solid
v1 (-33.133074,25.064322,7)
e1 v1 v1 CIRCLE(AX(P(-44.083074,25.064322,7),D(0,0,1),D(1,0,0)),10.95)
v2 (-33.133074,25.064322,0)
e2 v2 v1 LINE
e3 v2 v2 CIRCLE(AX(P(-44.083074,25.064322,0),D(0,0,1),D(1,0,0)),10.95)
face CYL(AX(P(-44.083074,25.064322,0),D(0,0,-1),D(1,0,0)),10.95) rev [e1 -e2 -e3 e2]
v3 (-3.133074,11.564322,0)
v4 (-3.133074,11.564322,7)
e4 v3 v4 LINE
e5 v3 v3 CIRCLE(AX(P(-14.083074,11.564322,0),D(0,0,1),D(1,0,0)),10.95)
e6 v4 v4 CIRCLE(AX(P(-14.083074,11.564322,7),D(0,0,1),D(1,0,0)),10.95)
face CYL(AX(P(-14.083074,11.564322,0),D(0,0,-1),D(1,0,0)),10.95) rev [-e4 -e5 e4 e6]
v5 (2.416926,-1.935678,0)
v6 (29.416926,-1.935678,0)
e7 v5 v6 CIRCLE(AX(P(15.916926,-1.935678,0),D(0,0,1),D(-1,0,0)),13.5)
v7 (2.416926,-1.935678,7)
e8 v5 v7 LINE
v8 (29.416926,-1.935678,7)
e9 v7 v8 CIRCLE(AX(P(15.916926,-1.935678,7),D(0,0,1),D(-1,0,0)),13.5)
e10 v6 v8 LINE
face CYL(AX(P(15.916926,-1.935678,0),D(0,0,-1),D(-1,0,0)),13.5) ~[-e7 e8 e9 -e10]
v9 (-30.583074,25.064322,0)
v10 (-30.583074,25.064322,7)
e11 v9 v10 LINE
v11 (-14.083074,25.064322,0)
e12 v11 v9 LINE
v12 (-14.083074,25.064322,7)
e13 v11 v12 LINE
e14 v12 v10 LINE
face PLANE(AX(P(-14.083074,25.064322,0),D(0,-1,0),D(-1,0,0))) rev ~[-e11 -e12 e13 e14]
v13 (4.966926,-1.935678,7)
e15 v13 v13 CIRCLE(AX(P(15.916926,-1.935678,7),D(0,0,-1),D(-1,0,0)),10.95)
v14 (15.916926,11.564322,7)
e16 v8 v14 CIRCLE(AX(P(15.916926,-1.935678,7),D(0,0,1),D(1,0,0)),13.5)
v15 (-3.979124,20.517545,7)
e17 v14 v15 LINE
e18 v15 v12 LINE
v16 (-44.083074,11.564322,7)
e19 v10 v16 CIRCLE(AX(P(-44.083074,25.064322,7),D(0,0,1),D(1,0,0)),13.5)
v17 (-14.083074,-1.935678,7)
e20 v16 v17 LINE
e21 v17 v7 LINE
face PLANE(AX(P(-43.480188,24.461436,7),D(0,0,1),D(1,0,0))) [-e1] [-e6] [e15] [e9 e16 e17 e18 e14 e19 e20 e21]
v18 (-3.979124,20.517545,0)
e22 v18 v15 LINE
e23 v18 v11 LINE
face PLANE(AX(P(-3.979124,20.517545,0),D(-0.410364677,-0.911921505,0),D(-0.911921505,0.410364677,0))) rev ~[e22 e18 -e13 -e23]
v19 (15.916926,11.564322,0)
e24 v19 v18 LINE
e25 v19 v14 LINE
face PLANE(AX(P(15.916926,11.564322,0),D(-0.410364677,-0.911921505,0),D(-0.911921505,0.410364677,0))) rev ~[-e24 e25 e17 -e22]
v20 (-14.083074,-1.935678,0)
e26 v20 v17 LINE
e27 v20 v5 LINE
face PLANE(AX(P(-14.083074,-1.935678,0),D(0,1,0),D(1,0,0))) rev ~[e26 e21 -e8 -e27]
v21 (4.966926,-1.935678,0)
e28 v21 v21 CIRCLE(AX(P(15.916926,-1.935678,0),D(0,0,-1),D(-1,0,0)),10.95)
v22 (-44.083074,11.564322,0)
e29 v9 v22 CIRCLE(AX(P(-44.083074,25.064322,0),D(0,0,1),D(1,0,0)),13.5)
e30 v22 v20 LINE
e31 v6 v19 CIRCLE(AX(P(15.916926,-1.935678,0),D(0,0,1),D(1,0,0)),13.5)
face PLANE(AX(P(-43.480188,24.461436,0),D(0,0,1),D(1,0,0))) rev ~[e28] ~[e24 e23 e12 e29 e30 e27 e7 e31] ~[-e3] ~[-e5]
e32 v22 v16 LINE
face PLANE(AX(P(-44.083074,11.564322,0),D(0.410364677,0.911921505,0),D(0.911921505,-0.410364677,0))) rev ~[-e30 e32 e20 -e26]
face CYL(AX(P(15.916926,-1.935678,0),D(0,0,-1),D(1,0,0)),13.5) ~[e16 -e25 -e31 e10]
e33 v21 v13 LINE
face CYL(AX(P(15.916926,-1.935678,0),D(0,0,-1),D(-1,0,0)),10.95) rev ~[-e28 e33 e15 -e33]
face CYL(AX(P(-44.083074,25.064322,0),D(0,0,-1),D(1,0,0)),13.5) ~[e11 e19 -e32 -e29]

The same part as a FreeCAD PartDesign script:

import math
import FreeCAD as App
import Part
import Sketcher
from FreeCAD import Vector

doc = App.newDocument("Part")
body = doc.addObject("PartDesign::Body", "Body")

# Sketch on XY plane
sketch1 = body.newObject("Sketcher::SketchObject", "Sketch")
sketch1.AttachmentSupport = (doc.getObject("XY_Plane"), [""])
sketch1.MapMode = "FlatFace"
sketch1.addGeometry([
    Part.ArcOfCircle(Part.Circle(Vector(-44, 25, 0), Vector(0, 0, 1), 14), math.radians(0), math.radians(270)),  # 0
    Part.LineSegment(Vector(-44, 12, 0), Vector(-14, -2, 0)),  # 1
    Part.LineSegment(Vector(-14, -2, 0), Vector(2, -2, 0)),  # 2
    Part.ArcOfCircle(Part.Circle(Vector(16, -2, 0), Vector(0, 0, 1), 14), math.radians(180), math.radians(360)),  # 3
    Part.ArcOfCircle(Part.Circle(Vector(16, -2, 0), Vector(0, 0, 1), 14), math.radians(0), math.radians(90)),  # 4
    Part.LineSegment(Vector(16, 12, 0), Vector(-4, 21, 0)),  # 5
    Part.LineSegment(Vector(-4, 21, 0), Vector(-14, 25, 0)),  # 6
    Part.LineSegment(Vector(-14, 25, 0), Vector(-31, 25, 0)),  # 7
    Part.Circle(Vector(16, -2, 0), Vector(0, 0, 1), 11),  # 8
    Part.Circle(Vector(-14, 12, 0), Vector(0, 0, 1), 11),  # 9
    Part.Circle(Vector(-44, 25, 0), Vector(0, 0, 1), 11),  # 10
], False)
sketch1.addConstraint([
    Sketcher.Constraint("Coincident", 0, 2, 1, 1),
    Sketcher.Constraint("Coincident", 1, 2, 2, 1),
    Sketcher.Constraint("Coincident", 2, 2, 3, 1),
    Sketcher.Constraint("Tangent", 3, 2, 4, 1),
    Sketcher.Constraint("Coincident", 4, 2, 5, 1),
    Sketcher.Constraint("Coincident", 5, 2, 6, 1),
    Sketcher.Constraint("Coincident", 6, 2, 7, 1),
    Sketcher.Constraint("Coincident", 7, 2, 0, 1),
    Sketcher.Constraint("Horizontal", 2),
    Sketcher.Constraint("Horizontal", 7),
    Sketcher.Constraint("Coincident", 8, 3, 3, 3),
    Sketcher.Constraint("Coincident", 10, 3, 0, 3),
    Sketcher.Constraint("Equal", 0, 3),
    Sketcher.Constraint("Equal", 3, 4),
    Sketcher.Constraint("Equal", 8, 9),
    Sketcher.Constraint("Equal", 9, 10),
    Sketcher.Constraint("Parallel", 1, 5),
    Sketcher.Constraint("Parallel", 5, 6),
    Sketcher.Constraint("Horizontal", 9, 3, 0, 2),
    Sketcher.Constraint("Horizontal", 8, 3, 1, 2),
    Sketcher.Constraint("Horizontal", 2, 2, 3, 2),
    Sketcher.Constraint("Horizontal", 0, 2, 4, 2),
    Sketcher.Constraint("Horizontal", 10, 3, 6, 2),
    Sketcher.Constraint("Vertical", 10, 3, 0, 2),
    Sketcher.Constraint("Vertical", 9, 3, 1, 2),
    Sketcher.Constraint("Vertical", 8, 3, 4, 2),
    Sketcher.Constraint("Vertical", 1, 2, 6, 2),
    Sketcher.Constraint("Diameter", 8, 21.9),
    Sketcher.Constraint("Radius", 0, 13.5),
    Sketcher.Constraint("DistanceX", 2, 1, 2, 2, 16.5),
    Sketcher.Constraint("DistanceX", 9, 3, 5, 2, 10.10395),
    Sketcher.Constraint("DistanceX", 0, 3, -1, 1, 44.083074),
    Sketcher.Constraint("DistanceY", -1, 1, 0, 3, 25.064322),
])
pad1 = body.newObject("PartDesign::Pad", "Pad")
pad1.Profile = sketch1
pad1.Length = 7

doc.recompute()
